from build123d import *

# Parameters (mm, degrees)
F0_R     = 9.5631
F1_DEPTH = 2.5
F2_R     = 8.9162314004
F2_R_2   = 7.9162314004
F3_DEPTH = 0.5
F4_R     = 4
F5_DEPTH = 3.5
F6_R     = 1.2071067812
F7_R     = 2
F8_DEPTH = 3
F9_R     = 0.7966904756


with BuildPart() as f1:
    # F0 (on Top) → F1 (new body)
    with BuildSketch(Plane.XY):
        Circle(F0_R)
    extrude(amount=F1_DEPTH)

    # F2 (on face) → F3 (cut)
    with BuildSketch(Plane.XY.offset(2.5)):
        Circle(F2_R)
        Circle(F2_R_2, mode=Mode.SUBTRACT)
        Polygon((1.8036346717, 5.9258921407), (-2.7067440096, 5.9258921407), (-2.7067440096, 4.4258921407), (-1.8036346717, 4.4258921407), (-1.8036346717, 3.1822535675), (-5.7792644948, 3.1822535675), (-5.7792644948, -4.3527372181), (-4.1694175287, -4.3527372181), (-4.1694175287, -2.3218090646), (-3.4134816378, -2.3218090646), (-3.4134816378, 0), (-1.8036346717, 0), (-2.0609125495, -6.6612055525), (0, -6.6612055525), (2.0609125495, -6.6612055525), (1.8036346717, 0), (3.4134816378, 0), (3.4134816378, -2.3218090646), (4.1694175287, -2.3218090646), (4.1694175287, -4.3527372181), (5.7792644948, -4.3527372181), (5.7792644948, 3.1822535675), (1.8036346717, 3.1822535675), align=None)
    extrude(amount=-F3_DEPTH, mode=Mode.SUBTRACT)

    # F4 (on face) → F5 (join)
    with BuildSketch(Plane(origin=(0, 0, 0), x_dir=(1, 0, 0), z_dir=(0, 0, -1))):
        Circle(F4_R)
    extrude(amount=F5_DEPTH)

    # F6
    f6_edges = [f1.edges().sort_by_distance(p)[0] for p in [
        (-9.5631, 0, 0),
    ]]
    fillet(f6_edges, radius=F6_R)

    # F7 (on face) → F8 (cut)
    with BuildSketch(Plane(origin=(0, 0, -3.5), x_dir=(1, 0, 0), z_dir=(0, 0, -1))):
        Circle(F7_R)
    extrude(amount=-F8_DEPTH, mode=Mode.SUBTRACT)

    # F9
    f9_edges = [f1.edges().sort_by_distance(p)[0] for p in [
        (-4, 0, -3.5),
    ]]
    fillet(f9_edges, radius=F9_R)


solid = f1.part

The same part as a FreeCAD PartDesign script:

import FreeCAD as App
import Part
import Sketcher
from FreeCAD import Vector
Q = App.Units.Quantity


def edges_at(feature, points):
    """Names of the edges that pass closest to the given points."""
    edges = feature.Shape.Edges
    near = lambda p: min(range(len(edges)), key=lambda i: edges[i].distToShape(Part.Vertex(*p))[0])
    return sorted({f"Edge{near(p) + 1}" for p in points})

doc = App.newDocument("Part")
body = doc.addObject("PartDesign::Body", "Body")

# Sketch on XY plane
sketch1 = body.newObject("Sketcher::SketchObject", "Sketch")
sketch1.AttachmentSupport = (doc.getObject("XY_Plane"), [""])
sketch1.MapMode = "FlatFace"
sketch1.addGeometry(Part.Circle(Vector(0, 0, 0), Vector(0, 0, 1), 9.5631), False)
sketch1.addConstraint(Sketcher.Constraint("Coincident", 0, 3, -1, 1))
sketch1.addConstraint(Sketcher.Constraint("Diameter", 0, Q("19.1262 mm")))
pad1 = body.newObject("PartDesign::Pad", "Pad")
pad1.Profile = sketch1
pad1.Length = 2.5

# Sketch on XY plane
sketch2 = body.newObject("Sketcher::SketchObject", "Sketch001")
sketch2.AttachmentSupport = (doc.getObject("XY_Plane"), [""])
sketch2.MapMode = "FlatFace"
sketch2.AttachmentOffset = App.Placement(Vector(0, 0, 2.5), App.Rotation())
sketch2.addGeometry(Part.Circle(Vector(0, 0, 0), Vector(0, 0, 1), 8.916231), False)
sketch2.addGeometry(Part.Circle(Vector(0, 0, 0), Vector(0, 0, 1), 7.916231), False)
sketch2.addGeometry(Part.LineSegment(Vector(1.803635, 5.925892, 0), Vector(-2.706744, 5.925892, 0)), False)
sketch2.addGeometry(Part.LineSegment(Vector(-2.706744, 5.925892, 0), Vector(-2.706744, 4.425892, 0)), False)
sketch2.addGeometry(Part.LineSegment(Vector(-2.706744, 4.425892, 0), Vector(-1.803635, 4.425892, 0)), False)
sketch2.addGeometry(Part.LineSegment(Vector(-1.803635, 4.425892, 0), Vector(-1.803635, 3.182254, 0)), False)
sketch2.addGeometry(Part.LineSegment(Vector(-1.803635, 3.182254, 0), Vector(-5.779264, 3.182254, 0)), False)
sketch2.addGeometry(Part.LineSegment(Vector(-5.779264, 3.182254, 0), Vector(-5.779264, -4.352737, 0)), False)
sketch2.addGeometry(Part.LineSegment(Vector(-5.779264, -4.352737, 0), Vector(-4.169418, -4.352737, 0)), False)
sketch2.addGeometry(Part.LineSegment(Vector(-4.169418, -4.352737, 0), Vector(-4.169418, -2.321809, 0)), False)
sketch2.addGeometry(Part.LineSegment(Vector(-4.169418, -2.321809, 0), Vector(-3.413482, -2.321809, 0)), False)
sketch2.addGeometry(Part.LineSegment(Vector(-3.413482, -2.321809, 0), Vector(-3.413482, 0, 0)), False)
sketch2.addGeometry(Part.LineSegment(Vector(-3.413482, 0, 0), Vector(-1.803635, 0, 0)), False)
sketch2.addGeometry(Part.LineSegment(Vector(-1.803635, 0, 0), Vector(-2.060913, -6.661206, 0)), False)
sketch2.addGeometry(Part.LineSegment(Vector(-2.060913, -6.661206, 0), Vector(2.060913, -6.661206, 0)), False)
sketch2.addGeometry(Part.LineSegment(Vector(2.060913, -6.661206, 0), Vector(1.803635, 0, 0)), False)
sketch2.addGeometry(Part.LineSegment(Vector(1.803635, 0, 0), Vector(3.413482, 0, 0)), False)
sketch2.addGeometry(Part.LineSegment(Vector(3.413482, 0, 0), Vector(3.413482, -2.321809, 0)), False)
sketch2.addGeometry(Part.LineSegment(Vector(3.413482, -2.321809, 0), Vector(4.169418, -2.321809, 0)), False)
sketch2.addGeometry(Part.LineSegment(Vector(4.169418, -2.321809, 0), Vector(4.169418, -4.352737, 0)), False)
sketch2.addGeometry(Part.LineSegment(Vector(4.169418, -4.352737, 0), Vector(5.779264, -4.352737, 0)), False)
sketch2.addGeometry(Part.LineSegment(Vector(5.779264, -4.352737, 0), Vector(5.779264, 3.182254, 0)), False)
sketch2.addGeometry(Part.LineSegment(Vector(5.779264, 3.182254, 0), Vector(1.803635, 3.182254, 0)), False)
sketch2.addGeometry(Part.LineSegment(Vector(1.803635, 3.182254, 0), Vector(1.803635, 5.925892, 0)), False)
sketch2.addConstraint(Sketcher.Constraint("Coincident", 2, 2, 3, 1))
sketch2.addConstraint(Sketcher.Constraint("Coincident", 3, 2, 4, 1))
sketch2.addConstraint(Sketcher.Constraint("Coincident", 4, 2, 5, 1))
sketch2.addConstraint(Sketcher.Constraint("Coincident", 5, 2, 6, 1))
sketch2.addConstraint(Sketcher.Constraint("Coincident", 6, 2, 7, 1))
sketch2.addConstraint(Sketcher.Constraint("Coincident", 7, 2, 8, 1))
sketch2.addConstraint(Sketcher.Constraint("Coincident", 8, 2, 9, 1))
sketch2.addConstraint(Sketcher.Constraint("Coincident", 9, 2, 10, 1))
sketch2.addConstraint(Sketcher.Constraint("Coincident", 10, 2, 11, 1))
sketch2.addConstraint(Sketcher.Constraint("Coincident", 11, 2, 12, 1))
sketch2.addConstraint(Sketcher.Constraint("Coincident", 12, 2, 13, 1))
sketch2.addConstraint(Sketcher.Constraint("Coincident", 13, 2, 14, 1))
sketch2.addConstraint(Sketcher.Constraint("Coincident", 14, 2, 15, 1))
sketch2.addConstraint(Sketcher.Constraint("Coincident", 15, 2, 16, 1))
sketch2.addConstraint(Sketcher.Constraint("Coincident", 16, 2, 17, 1))
sketch2.addConstraint(Sketcher.Constraint("Coincident", 17, 2, 18, 1))
sketch2.addConstraint(Sketcher.Constraint("Coincident", 18, 2, 19, 1))
sketch2.addConstraint(Sketcher.Constraint("Coincident", 19, 2, 20, 1))
sketch2.addConstraint(Sketcher.Constraint("Coincident", 20, 2, 21, 1))
sketch2.addConstraint(Sketcher.Constraint("Coincident", 21, 2, 22, 1))
sketch2.addConstraint(Sketcher.Constraint("Coincident", 22, 2, 23, 1))
sketch2.addConstraint(Sketcher.Constraint("Coincident", 23, 2, 2, 1))
sketch2.addConstraint(Sketcher.Constraint("Horizontal", 2))
sketch2.addConstraint(Sketcher.Constraint("Vertical", 3))
sketch2.addConstraint(Sketcher.Constraint("Horizontal", 4))
sketch2.addConstraint(Sketcher.Constraint("Vertical", 5))
sketch2.addConstraint(Sketcher.Constraint("Horizontal", 6))
sketch2.addConstraint(Sketcher.Constraint("Vertical", 7))
sketch2.addConstraint(Sketcher.Constraint("Horizontal", 8))
sketch2.addConstraint(Sketcher.Constraint("Vertical", 9))
sketch2.addConstraint(Sketcher.Constraint("Horizontal", 10))
sketch2.addConstraint(Sketcher.Constraint("Vertical", 11))
sketch2.addConstraint(Sketcher.Constraint("Horizontal", 12))
sketch2.addConstraint(Sketcher.Constraint("Horizontal", 14))
sketch2.addConstraint(Sketcher.Constraint("Horizontal", 16))
sketch2.addConstraint(Sketcher.Constraint("Vertical", 17))
sketch2.addConstraint(Sketcher.Constraint("Horizontal", 18))
sketch2.addConstraint(Sketcher.Constraint("Vertical", 19))
sketch2.addConstraint(Sketcher.Constraint("Horizontal", 20))
sketch2.addConstraint(Sketcher.Constraint("Vertical", 21))
sketch2.addConstraint(Sketcher.Constraint("Horizontal", 22))
sketch2.addConstraint(Sketcher.Constraint("Vertical", 23))
sketch2.addConstraint(Sketcher.Constraint("Coincident", 0, 3, -1, 1))
sketch2.addConstraint(Sketcher.Constraint("Coincident", 1, 3, -1, 1))
sketch2.addConstraint(Sketcher.Constraint("Symmetric", 12, 2, 15, 2, -1, 1))
sketch2.addConstraint(Sketcher.Constraint("Symmetric", 11, 2, 16, 2, -2))
sketch2.addConstraint(Sketcher.Constraint("Symmetric", 9, 2, 18, 2, -2))
sketch2.addConstraint(Sketcher.Constraint("Symmetric", 7, 2, 20, 2, -2))
sketch2.addConstraint(Sketcher.Constraint("Symmetric", 5, 2, 22, 2, -2))
sketch2.addConstraint(Sketcher.Constraint("Vertical", 5, 2, 12, 2))
sketch2.addConstraint(Sketcher.Constraint("Equal", 8, 12))
sketch2.addConstraint(Sketcher.Constraint("Equal", 13, 15))
sketch2.addConstraint(Sketcher.Constraint("DistanceY", 3, 2, 3, 1, Q("1.5 mm")))
sketch2.addConstraint(Sketcher.Constraint("Diameter", 0, Q("17.832463 mm")))
sketch2.addConstraint(Sketcher.Constraint("Diameter", 1, Q("15.832463 mm")))
sketch2.addConstraint(Sketcher.Constraint("DistanceX", 2, 2, 2, 1, Q("4.510379 mm")))
sketch2.addConstraint(Sketcher.Constraint("DistanceX", 4, 1, 4, 2, Q("0.903109 mm")))
sketch2.addConstraint(Sketcher.Constraint("DistanceX", 6, 2, 6, 1, Q("3.97563 mm")))
sketch2.addConstraint(Sketcher.Constraint("DistanceY", 5, 2, 5, 1, Q("1.243639 mm")))
sketch2.addConstraint(Sketcher.Constraint("DistanceY", 7, 2, 7, 1, Q("7.534991 mm")))
sketch2.addConstraint(Sketcher.Constraint("DistanceY", 9, 1, 9, 2, Q("2.030928 mm")))
sketch2.addConstraint(Sketcher.Constraint("DistanceY", 11, 1, 11, 2, Q("2.321809 mm")))
sketch2.addConstraint(Sketcher.Constraint("DistanceX", 8, 1, 8, 2, Q("1.609847 mm")))
sketch2.addConstraint(Sketcher.Constraint("DistanceX", 14, 1, 14, 2, Q("4.121825 mm")))
sketch2.addConstraint(Sketcher.Constraint("DistanceY", 13, 2, 8, 2, Q("2.308468 mm")))
pocket1 = body.newObject("PartDesign::Pocket", "Pocket")
pocket1.Profile = sketch2
pocket1.Length = 0.5

# Sketch on XY plane
sketch3 = body.newObject("Sketcher::SketchObject", "Sketch002")
sketch3.AttachmentSupport = (doc.getObject("XY_Plane"), [""])
sketch3.MapMode = "FlatFace"
sketch3.addGeometry(Part.Circle(Vector(0, 0, 0), Vector(0, 0, 1), 4), False)
sketch3.addConstraint(Sketcher.Constraint("Coincident", 0, 3, -1, 1))
sketch3.addConstraint(Sketcher.Constraint("Diameter", 0, Q("8 mm")))
pad2 = body.newObject("PartDesign::Pad", "Pad001")
pad2.Profile = sketch3
pad2.Length = 3.5
pad2.Reversed = True
doc.recompute()

fillet = body.newObject("PartDesign::Fillet", "Fillet")
fillet.Base = (pad2, edges_at(pad2, [(-9.563, 0, 0)]))
fillet.Radius = 1.207107

# Sketch on XY plane
sketch4 = body.newObject("Sketcher::SketchObject", "Sketch003")
sketch4.AttachmentSupport = (doc.getObject("XY_Plane"), [""])
sketch4.MapMode = "FlatFace"
sketch4.AttachmentOffset = App.Placement(Vector(0, 0, -3.5), App.Rotation())
sketch4.addGeometry(Part.Circle(Vector(0, 0, 0), Vector(0, 0, 1), 2), False)
sketch4.addConstraint(Sketcher.Constraint("Coincident", 0, 3, -1, 1))
sketch4.addConstraint(Sketcher.Constraint("Diameter", 0, Q("4 mm")))
pocket2 = body.newObject("PartDesign::Pocket", "Pocket001")
pocket2.Profile = sketch4
pocket2.Length = 3
pocket2.Reversed = True
doc.recompute()

fillet2 = body.newObject("PartDesign::Fillet", "Fillet001")
fillet2.Base = (pocket2, edges_at(pocket2, [(-4, 0, -3.5)]))
fillet2.Radius = 0.79669

doc.recompute()
